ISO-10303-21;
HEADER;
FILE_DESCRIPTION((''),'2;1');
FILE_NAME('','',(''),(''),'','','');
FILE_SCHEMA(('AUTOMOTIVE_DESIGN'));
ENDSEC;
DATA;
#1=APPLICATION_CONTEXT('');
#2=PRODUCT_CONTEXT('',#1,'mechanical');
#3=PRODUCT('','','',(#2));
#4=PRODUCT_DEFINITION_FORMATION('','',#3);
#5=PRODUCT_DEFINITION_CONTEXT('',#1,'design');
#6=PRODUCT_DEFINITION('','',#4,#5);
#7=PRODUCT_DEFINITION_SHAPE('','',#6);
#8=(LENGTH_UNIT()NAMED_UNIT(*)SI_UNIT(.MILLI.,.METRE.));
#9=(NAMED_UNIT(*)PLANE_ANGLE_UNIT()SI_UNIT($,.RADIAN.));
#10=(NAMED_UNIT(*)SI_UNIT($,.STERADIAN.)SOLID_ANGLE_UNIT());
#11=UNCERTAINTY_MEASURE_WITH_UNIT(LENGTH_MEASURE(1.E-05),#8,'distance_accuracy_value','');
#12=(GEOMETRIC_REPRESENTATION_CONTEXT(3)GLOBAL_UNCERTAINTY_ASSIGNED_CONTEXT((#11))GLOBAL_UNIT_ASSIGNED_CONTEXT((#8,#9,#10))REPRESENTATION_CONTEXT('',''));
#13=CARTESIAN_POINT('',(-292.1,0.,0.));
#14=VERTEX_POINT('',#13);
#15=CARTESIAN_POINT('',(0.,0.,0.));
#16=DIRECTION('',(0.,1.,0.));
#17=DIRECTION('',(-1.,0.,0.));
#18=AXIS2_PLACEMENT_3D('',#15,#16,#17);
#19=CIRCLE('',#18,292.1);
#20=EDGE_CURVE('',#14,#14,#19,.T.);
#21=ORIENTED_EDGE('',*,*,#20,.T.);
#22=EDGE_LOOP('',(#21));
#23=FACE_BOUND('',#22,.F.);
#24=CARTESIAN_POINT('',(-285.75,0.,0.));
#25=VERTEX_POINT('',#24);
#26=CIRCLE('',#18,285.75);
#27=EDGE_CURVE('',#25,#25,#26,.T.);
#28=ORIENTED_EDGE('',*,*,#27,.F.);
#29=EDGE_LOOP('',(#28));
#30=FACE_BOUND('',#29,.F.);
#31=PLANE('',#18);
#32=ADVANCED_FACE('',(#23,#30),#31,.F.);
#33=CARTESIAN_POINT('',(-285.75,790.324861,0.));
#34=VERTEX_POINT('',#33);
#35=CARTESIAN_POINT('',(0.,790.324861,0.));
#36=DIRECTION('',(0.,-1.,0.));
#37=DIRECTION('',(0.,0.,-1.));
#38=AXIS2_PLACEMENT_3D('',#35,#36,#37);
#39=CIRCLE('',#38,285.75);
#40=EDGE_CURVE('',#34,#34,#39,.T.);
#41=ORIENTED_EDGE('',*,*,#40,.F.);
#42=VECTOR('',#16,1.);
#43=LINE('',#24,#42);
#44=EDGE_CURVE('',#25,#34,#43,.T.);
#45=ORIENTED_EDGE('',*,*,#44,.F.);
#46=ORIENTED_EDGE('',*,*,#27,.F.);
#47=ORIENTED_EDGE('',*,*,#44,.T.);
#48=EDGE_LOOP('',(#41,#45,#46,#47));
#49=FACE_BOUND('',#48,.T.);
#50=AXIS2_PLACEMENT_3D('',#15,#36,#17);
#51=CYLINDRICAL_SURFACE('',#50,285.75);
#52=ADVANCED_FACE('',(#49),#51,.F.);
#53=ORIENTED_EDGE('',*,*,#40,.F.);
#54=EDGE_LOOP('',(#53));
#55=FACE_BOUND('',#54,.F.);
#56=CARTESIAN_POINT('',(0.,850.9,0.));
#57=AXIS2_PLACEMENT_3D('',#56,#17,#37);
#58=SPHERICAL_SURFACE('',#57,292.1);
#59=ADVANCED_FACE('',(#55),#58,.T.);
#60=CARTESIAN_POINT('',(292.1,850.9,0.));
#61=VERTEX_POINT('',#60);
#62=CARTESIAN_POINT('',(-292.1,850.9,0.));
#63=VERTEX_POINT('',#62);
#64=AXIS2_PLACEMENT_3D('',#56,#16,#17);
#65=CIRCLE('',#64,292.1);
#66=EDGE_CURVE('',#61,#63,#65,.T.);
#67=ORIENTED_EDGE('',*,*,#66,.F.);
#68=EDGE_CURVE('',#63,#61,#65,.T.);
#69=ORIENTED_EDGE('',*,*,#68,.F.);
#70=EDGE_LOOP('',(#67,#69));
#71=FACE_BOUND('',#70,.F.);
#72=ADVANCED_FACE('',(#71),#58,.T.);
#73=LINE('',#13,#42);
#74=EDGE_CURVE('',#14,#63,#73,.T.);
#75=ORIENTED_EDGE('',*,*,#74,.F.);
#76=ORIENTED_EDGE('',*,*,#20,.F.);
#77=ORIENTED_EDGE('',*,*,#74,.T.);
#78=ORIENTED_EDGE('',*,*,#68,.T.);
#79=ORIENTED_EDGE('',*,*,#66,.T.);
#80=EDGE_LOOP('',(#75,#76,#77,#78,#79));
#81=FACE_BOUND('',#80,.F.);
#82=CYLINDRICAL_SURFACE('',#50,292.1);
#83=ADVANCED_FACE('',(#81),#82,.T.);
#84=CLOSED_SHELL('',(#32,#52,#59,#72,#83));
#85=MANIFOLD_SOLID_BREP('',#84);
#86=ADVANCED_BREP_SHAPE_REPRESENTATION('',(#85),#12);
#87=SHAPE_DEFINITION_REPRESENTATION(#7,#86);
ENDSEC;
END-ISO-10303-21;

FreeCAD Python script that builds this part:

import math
import FreeCAD as App
import Part
import Sketcher
from FreeCAD import Vector
Q = App.Units.Quantity

doc = App.newDocument("Part")
body = doc.addObject("PartDesign::Body", "Body")

# Sketch on XZ plane
sketch1 = body.newObject("Sketcher::SketchObject", "Sketch")
sketch1.AttachmentSupport = (doc.getObject("XZ_Plane"), [""])
sketch1.MapMode = "FlatFace"
sketch1.addGeometry([
    Part.Circle(Vector(0, 0, 0), Vector(0, 0, 1), 292.1),
    Part.Circle(Vector(0, 0, 0), Vector(0, 0, 1), 285.75),
], False)
sketch1.addConstraint([
    Sketcher.Constraint("Coincident", 0, 3, -1, 1),
    Sketcher.Constraint("Coincident", 1, 3, -1, 1),
    Sketcher.Constraint("Diameter", 0, Q("23 in")),
    Sketcher.Constraint("Diameter", 1, Q("22.5 in")),
])
pad1 = body.newObject("PartDesign::Pad", "Pad")
pad1.Profile = sketch1
pad1.Length = Q("33.5 in")
pad1.Reversed = True

# Sketch on XZ plane
sketch2 = body.newObject("Sketcher::SketchObject", "Sketch001")
sketch2.AttachmentSupport = (doc.getObject("XZ_Plane"), [""])
sketch2.MapMode = "FlatFace"
sketch2.AttachmentOffset = App.Placement(Vector(0, 0, -33.5 * 25.4), App.Rotation())
sketch2.addGeometry([
    Part.ArcOfCircle(Part.Circle(Vector(0, 0, 0), Vector(0, 0, 1), 292.1), math.radians(180), math.radians(360)),
    Part.LineSegment(Vector(-292.1, 0, 0), Vector(292.1, 0, 0)),
], False)
sketch2.addConstraint([
    Sketcher.Constraint("Coincident", 0, 1, 1, 1),
    Sketcher.Constraint("Coincident", 1, 2, 0, 2),
    Sketcher.Constraint("Horizontal", 1),
    Sketcher.Constraint("Coincident", 0, 3, -1, 1),
    Sketcher.Constraint("PointOnObject", 0, 1, -1),
    Sketcher.Constraint("Radius", 0, Q("11.5 in")),
])
revolution = body.newObject("PartDesign::Revolution", "Revolution")
revolution.Profile = sketch2
revolution.ReferenceAxis = (sketch2, ["H_Axis"])
revolution.Angle = 360

doc.recompute()
